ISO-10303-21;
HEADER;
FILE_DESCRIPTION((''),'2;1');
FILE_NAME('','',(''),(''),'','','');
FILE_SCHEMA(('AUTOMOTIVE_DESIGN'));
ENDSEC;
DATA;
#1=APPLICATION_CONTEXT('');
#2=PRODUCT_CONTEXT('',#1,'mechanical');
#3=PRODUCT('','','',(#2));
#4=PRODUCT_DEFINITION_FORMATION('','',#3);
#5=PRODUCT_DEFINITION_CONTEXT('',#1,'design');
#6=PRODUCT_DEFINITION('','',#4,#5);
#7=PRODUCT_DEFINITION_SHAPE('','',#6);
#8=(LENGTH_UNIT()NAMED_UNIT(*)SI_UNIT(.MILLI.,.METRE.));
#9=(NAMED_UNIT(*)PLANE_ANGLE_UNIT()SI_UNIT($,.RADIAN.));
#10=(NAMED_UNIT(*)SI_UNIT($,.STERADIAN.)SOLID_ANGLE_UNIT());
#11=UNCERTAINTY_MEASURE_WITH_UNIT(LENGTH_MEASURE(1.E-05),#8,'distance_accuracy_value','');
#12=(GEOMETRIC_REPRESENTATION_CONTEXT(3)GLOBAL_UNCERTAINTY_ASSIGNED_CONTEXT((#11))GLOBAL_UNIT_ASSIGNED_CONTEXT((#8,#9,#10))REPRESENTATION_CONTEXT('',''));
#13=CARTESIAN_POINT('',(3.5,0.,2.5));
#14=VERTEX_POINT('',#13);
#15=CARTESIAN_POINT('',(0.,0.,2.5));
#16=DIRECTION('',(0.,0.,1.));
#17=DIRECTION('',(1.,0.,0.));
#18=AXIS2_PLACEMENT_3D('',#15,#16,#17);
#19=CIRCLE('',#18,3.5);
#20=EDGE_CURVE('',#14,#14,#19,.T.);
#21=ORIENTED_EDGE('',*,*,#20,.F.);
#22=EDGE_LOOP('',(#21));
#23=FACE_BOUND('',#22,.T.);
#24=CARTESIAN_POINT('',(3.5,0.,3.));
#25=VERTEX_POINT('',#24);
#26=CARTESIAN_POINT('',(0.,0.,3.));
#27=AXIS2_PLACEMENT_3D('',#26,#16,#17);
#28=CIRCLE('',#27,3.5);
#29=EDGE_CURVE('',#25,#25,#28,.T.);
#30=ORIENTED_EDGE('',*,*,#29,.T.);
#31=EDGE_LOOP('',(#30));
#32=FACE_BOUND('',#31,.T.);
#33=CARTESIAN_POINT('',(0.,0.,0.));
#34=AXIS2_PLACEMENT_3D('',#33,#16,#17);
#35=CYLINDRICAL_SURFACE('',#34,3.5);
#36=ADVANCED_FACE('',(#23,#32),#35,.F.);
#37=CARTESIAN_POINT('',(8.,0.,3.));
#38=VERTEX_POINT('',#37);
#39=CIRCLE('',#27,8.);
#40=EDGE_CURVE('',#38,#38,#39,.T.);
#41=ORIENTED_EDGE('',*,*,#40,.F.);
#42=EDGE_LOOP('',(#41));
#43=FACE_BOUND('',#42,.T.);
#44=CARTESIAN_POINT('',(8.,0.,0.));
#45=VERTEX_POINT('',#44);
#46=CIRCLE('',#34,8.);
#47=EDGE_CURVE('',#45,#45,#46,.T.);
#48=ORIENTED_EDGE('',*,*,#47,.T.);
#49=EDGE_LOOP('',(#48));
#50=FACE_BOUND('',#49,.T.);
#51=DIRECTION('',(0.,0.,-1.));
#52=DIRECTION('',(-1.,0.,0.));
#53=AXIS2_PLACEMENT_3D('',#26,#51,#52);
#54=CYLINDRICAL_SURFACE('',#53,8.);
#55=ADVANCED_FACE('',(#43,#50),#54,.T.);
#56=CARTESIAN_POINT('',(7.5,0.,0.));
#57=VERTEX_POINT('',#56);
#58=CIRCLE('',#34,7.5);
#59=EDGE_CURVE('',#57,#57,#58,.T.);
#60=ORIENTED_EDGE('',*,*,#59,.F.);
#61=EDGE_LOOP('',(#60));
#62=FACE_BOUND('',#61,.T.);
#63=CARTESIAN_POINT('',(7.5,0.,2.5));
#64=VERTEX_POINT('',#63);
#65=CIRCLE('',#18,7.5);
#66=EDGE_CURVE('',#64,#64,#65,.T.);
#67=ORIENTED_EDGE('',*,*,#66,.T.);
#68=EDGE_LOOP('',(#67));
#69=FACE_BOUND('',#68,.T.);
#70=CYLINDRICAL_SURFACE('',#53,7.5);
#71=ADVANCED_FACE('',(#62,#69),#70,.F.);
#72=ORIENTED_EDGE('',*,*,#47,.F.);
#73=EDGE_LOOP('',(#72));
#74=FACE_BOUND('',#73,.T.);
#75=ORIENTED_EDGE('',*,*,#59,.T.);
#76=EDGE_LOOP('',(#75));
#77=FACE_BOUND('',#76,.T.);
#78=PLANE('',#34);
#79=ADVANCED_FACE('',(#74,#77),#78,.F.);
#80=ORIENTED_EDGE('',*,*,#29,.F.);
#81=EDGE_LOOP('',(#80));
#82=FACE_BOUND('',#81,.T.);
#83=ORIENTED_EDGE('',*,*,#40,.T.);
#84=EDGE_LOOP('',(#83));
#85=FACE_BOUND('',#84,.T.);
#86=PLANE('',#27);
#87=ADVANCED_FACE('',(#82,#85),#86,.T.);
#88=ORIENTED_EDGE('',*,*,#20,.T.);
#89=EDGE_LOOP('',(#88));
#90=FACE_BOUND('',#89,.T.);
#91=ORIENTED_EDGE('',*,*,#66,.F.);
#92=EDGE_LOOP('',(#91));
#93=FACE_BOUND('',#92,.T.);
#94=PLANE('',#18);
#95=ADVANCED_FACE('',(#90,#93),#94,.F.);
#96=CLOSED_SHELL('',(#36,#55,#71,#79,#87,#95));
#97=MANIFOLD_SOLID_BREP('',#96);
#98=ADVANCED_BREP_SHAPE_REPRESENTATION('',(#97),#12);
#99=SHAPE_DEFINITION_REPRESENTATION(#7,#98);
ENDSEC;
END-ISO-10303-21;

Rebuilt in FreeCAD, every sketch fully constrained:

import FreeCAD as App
import Part
import Sketcher

V = App.Vector


def faces_at(feature, points):
    """Names of the faces that lie closest to the given points."""
    faces = feature.Shape.Faces
    near = lambda p: min(range(len(faces)), key=lambda i: faces[i].distToShape(Part.Vertex(*p))[0])
    return sorted({f"Face{near(p) + 1}" for p in points})

doc = App.newDocument("Part")
body = doc.addObject("PartDesign::Body", "Body")

sketch1 = body.newObject("Sketcher::SketchObject", "Sketch")
sketch1.AttachmentSupport = (doc.getObject("XY_Plane"), [""])
sketch1.MapMode = "FlatFace"
sketch1.addGeometry(Part.Circle(V(0, 0, 0), V(0, 0, 1), 8), False)
sketch1.addConstraint(Sketcher.Constraint("Coincident", 0, 3, -1, 1))
sketch1.addConstraint(Sketcher.Constraint("Diameter", 0, 16.0))
pad1 = body.newObject("PartDesign::Pad", "Pad")
pad1.Profile = sketch1
pad1.Length = 3
doc.recompute()

thickness = body.newObject("PartDesign::Thickness", "Thickness")
thickness.Base = (pad1, faces_at(pad1, [(0, 0, 0)]))
thickness.Value = 0.5
thickness.Reversed = True
thickness.Join = "Intersection"

sketch2 = body.newObject("Sketcher::SketchObject", "Sketch001")
sketch2.AttachmentSupport = (doc.getObject("XY_Plane"), [""])
sketch2.MapMode = "FlatFace"
sketch2.AttachmentOffset = App.Placement(V(0, 0, 3), App.Rotation())
sketch2.addGeometry(Part.Circle(V(0, 0, 0), V(0, 0, 1), 3.5), False)
sketch2.addConstraint(Sketcher.Constraint("Coincident", 0, 3, -1, 1))
sketch2.addConstraint(Sketcher.Constraint("Diameter", 0, 7.0))
pocket1 = body.newObject("PartDesign::Pocket", "Pocket")
pocket1.Profile = sketch2
pocket1.Type = "ThroughAll"

doc.recompute()
